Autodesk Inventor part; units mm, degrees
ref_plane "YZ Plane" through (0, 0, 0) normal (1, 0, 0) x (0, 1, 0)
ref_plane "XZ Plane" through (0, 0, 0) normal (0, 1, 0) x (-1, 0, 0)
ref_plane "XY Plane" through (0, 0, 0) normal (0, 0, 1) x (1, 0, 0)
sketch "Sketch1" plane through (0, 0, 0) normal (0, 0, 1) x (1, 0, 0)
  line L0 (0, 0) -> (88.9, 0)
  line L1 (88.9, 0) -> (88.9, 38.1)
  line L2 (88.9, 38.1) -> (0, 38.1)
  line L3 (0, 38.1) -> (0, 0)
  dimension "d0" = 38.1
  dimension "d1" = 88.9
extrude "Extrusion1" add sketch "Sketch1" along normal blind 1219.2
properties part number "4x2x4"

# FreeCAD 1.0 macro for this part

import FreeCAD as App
import Part
import Sketcher
from FreeCAD import Vector
Q = App.Units.Quantity

doc = App.newDocument("Part")
body = doc.addObject("PartDesign::Body", "Body")

sketch1 = body.newObject("Sketcher::SketchObject", "Sketch")
sketch1.AttachmentSupport = (doc.getObject("XY_Plane"), [""])
sketch1.MapMode = "FlatFace"
sketch1.addGeometry(Part.LineSegment(Vector(0, 38, 0), Vector(0, 0, 0)), False)
sketch1.addGeometry(Part.LineSegment(Vector(0, 0, 0), Vector(89, 0, 0)), False)
sketch1.addGeometry(Part.LineSegment(Vector(89, 0, 0), Vector(89, 38, 0)), False)
sketch1.addGeometry(Part.LineSegment(Vector(89, 38, 0), Vector(0, 38, 0)), False)
sketch1.addConstraint(Sketcher.Constraint("Coincident", 0, 2, 1, 1))
sketch1.addConstraint(Sketcher.Constraint("Coincident", 1, 2, 2, 1))
sketch1.addConstraint(Sketcher.Constraint("Coincident", 2, 2, 3, 1))
sketch1.addConstraint(Sketcher.Constraint("Coincident", 3, 2, 0, 1))
sketch1.addConstraint(Sketcher.Constraint("Vertical", 0))
sketch1.addConstraint(Sketcher.Constraint("Horizontal", 1))
sketch1.addConstraint(Sketcher.Constraint("Vertical", 2))
sketch1.addConstraint(Sketcher.Constraint("Horizontal", 3))
sketch1.addConstraint(Sketcher.Constraint("Coincident", 0, 2, -1, 1))
sketch1.addConstraint(Sketcher.Constraint("DistanceX", 1, 1, 1, 2, Q("3.5 in")))
sketch1.addConstraint(Sketcher.Constraint("DistanceY", 0, 2, 0, 1, Q("1.5 in")))
pad1 = body.newObject("PartDesign::Pad", "Pad")
pad1.Profile = sketch1
pad1.Length = Q("48 in")

doc.recompute()
